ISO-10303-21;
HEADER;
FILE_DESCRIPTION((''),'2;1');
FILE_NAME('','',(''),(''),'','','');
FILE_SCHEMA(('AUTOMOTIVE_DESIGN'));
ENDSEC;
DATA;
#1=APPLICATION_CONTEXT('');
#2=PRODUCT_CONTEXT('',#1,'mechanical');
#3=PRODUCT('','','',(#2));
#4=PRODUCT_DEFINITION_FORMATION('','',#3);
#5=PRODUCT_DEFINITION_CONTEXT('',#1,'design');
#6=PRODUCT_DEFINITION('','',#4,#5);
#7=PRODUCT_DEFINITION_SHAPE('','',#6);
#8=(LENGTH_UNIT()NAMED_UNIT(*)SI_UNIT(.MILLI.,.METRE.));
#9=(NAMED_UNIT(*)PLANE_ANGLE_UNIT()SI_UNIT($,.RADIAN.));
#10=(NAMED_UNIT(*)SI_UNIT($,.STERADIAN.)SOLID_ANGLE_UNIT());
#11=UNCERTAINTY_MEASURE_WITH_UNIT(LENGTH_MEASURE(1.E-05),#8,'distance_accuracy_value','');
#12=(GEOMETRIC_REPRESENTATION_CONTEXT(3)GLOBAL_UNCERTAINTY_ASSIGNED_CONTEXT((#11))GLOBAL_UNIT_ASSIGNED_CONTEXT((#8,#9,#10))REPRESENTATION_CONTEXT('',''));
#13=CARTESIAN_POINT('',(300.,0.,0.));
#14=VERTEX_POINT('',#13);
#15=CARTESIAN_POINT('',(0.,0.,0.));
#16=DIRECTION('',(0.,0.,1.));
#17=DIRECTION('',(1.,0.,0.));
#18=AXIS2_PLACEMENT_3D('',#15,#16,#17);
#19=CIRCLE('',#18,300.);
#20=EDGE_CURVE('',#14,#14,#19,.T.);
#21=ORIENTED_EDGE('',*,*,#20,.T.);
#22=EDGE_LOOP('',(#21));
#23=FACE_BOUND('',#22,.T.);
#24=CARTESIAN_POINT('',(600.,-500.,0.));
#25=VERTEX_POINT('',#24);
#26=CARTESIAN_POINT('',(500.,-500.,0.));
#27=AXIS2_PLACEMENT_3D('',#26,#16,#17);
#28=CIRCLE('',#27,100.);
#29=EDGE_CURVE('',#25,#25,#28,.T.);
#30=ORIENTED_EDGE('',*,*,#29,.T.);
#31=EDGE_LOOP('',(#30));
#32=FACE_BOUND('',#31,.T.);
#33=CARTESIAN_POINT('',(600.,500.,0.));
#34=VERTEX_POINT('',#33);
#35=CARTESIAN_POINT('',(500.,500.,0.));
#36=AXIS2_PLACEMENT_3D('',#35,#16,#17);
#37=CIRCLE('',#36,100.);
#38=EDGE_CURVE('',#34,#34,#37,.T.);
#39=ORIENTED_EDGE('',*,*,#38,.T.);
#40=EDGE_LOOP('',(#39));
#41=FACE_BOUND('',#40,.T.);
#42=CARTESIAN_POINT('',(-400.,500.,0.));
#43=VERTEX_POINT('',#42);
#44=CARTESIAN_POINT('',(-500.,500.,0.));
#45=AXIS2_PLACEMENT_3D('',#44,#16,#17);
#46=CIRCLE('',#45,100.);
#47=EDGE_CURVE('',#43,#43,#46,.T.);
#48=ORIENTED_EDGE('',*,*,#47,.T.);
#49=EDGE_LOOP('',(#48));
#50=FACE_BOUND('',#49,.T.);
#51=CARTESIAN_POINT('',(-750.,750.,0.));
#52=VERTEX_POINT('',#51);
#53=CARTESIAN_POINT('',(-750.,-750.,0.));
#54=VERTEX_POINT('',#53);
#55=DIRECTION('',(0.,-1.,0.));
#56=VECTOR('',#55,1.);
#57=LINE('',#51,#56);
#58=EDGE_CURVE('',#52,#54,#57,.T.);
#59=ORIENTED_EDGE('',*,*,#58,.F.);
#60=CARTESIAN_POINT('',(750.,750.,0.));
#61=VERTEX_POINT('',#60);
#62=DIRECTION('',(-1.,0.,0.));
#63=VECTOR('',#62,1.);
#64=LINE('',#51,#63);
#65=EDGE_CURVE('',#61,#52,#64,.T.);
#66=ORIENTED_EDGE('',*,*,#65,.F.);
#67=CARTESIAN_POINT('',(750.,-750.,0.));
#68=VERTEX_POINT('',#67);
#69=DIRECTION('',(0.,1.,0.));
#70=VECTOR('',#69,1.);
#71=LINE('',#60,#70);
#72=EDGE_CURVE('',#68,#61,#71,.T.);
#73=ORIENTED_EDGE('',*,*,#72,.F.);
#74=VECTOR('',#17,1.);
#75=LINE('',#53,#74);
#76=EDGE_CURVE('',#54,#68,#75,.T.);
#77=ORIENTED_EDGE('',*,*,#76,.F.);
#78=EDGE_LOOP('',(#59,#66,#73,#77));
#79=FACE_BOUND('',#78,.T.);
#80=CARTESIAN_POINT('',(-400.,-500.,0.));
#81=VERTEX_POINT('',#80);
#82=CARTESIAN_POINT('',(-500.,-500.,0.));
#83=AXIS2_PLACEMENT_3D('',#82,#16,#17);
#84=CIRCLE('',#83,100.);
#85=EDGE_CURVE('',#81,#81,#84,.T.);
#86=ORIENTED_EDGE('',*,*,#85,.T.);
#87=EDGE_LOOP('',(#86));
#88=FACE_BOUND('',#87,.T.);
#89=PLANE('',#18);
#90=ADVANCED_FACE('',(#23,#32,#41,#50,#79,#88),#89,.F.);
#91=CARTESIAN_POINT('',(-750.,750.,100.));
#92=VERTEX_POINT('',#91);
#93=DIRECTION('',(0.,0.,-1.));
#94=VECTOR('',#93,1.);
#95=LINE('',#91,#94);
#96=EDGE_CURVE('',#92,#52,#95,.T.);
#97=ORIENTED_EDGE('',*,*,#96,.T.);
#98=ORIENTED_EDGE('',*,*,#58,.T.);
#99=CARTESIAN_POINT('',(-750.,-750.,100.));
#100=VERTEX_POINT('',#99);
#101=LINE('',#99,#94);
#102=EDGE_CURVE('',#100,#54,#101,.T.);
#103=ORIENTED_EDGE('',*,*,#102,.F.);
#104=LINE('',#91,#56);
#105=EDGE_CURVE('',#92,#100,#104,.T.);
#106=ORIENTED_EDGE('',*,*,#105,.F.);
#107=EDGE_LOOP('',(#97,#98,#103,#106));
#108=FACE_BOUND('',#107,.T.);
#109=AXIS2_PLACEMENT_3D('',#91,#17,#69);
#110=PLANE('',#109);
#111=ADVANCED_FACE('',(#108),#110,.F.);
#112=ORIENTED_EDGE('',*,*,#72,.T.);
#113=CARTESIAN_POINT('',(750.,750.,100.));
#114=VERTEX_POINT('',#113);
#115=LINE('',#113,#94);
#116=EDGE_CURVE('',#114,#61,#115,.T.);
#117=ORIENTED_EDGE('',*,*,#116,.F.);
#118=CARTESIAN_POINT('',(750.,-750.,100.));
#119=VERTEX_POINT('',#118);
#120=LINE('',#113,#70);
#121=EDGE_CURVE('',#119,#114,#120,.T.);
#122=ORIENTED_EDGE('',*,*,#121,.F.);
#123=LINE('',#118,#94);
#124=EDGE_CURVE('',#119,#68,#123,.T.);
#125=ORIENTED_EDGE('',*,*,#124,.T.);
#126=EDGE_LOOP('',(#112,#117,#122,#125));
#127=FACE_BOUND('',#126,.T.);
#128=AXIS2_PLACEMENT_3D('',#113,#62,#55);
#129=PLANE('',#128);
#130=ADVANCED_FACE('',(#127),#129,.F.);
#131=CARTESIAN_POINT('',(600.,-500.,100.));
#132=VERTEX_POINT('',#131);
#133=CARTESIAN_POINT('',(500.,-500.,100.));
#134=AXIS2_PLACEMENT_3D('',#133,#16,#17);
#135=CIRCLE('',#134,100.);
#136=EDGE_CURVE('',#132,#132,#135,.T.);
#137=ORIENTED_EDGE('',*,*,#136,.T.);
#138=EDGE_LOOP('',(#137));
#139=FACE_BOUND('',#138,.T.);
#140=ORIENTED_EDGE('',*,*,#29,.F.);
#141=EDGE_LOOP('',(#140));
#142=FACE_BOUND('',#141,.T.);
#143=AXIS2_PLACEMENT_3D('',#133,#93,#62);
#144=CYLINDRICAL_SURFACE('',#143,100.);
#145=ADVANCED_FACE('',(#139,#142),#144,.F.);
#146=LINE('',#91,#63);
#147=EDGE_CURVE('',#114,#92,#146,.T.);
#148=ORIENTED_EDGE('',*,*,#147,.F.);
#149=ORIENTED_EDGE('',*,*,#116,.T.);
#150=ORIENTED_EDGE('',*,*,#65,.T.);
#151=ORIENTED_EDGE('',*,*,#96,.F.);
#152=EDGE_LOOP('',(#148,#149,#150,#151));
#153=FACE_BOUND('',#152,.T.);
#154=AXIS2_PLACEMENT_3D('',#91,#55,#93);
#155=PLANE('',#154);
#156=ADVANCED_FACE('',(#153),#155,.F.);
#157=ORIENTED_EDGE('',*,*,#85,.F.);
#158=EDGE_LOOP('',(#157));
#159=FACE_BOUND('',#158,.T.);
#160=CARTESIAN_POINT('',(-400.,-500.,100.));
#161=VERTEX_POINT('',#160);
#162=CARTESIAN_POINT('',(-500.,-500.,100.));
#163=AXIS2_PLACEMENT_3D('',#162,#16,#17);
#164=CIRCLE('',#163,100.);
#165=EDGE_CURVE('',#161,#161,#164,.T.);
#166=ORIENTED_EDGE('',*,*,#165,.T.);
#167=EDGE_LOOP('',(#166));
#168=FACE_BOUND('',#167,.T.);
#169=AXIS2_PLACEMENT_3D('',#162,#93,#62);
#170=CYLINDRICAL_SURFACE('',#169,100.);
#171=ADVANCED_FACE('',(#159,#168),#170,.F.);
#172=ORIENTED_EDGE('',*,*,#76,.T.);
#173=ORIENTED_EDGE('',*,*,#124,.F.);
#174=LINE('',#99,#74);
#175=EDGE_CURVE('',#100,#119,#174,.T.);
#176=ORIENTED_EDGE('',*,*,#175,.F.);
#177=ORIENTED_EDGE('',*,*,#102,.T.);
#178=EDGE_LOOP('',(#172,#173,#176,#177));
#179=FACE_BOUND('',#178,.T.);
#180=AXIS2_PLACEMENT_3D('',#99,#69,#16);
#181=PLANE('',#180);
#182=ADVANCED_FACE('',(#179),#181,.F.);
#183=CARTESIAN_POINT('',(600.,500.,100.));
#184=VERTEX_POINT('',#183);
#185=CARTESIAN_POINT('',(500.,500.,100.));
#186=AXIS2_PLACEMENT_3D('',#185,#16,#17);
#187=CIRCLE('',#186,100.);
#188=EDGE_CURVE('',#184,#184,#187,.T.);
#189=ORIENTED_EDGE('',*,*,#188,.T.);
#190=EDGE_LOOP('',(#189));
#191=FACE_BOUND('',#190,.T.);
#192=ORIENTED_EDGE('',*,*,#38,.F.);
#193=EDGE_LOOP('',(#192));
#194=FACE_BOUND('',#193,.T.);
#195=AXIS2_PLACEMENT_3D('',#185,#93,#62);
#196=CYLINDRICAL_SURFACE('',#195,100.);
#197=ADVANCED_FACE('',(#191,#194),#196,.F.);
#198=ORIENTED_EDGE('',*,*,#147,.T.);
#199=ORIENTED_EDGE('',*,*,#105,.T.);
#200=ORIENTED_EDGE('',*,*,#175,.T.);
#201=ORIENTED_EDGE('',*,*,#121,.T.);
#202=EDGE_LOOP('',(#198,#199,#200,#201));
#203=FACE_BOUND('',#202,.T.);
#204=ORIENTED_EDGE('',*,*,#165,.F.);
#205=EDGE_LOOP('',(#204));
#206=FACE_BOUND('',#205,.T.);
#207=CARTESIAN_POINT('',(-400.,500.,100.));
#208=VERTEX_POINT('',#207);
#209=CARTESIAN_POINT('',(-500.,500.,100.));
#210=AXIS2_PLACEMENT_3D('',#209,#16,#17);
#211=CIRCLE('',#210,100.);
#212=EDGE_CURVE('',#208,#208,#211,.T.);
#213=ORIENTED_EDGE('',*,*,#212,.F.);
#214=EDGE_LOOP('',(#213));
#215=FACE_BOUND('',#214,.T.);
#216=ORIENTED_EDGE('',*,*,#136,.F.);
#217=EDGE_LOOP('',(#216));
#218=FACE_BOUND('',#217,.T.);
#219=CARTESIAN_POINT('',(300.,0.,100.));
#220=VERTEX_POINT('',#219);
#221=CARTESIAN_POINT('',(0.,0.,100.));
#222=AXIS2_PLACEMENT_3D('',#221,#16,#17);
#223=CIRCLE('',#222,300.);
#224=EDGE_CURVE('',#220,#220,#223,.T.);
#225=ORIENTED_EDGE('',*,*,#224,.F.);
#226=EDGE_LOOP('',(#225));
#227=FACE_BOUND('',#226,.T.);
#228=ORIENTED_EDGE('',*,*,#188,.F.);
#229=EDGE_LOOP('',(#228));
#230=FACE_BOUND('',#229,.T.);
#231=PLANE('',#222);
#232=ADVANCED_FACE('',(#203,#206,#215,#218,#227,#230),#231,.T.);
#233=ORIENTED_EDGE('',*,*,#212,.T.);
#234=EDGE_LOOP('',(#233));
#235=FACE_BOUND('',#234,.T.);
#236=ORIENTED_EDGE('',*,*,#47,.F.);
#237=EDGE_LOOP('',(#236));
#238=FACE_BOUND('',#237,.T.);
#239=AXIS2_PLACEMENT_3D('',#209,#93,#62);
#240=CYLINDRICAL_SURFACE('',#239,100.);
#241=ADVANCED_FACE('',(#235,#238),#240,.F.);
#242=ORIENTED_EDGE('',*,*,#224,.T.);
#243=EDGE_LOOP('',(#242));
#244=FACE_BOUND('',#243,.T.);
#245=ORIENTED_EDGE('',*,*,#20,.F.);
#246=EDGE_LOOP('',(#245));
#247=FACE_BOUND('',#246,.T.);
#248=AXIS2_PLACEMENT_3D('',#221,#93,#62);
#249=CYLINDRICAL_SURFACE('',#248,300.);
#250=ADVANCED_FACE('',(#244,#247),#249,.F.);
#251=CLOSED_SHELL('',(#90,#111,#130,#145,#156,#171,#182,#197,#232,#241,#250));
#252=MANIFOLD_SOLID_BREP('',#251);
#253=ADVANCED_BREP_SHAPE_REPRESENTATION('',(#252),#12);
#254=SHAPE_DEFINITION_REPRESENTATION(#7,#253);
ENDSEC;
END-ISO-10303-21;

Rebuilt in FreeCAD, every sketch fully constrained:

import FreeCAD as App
import Part
import Sketcher
Q = App.Units.Quantity

doc = App.newDocument("Part")
body = doc.addObject("PartDesign::Body", "Body")

# Sketch on XY plane
sketch1 = doc.addObject("Sketcher::SketchObject", "Sketch")
body.addObject(sketch1)
sketch1.AttachmentSupport = (doc.XY_Plane, [""])
sketch1.MapMode = "FlatFace"
sketch1.addGeometry([
    Part.LineSegment(App.Vector(-750, 750, 0), App.Vector(-750, -750, 0)),  # 0
    Part.LineSegment(App.Vector(-750, -750, 0), App.Vector(750, -750, 0)),  # 1
    Part.LineSegment(App.Vector(750, -750, 0), App.Vector(750, 750, 0)),  # 2
    Part.LineSegment(App.Vector(750, 750, 0), App.Vector(-750, 750, 0)),  # 3
    Part.Circle(App.Vector(-500, -500, 0), App.Vector(0, 0, 1), 100),  # 4
    Part.Circle(App.Vector(500, -500, 0), App.Vector(0, 0, 1), 100),  # 5
    Part.Circle(App.Vector(-500, 500, 0), App.Vector(0, 0, 1), 100),  # 6
    Part.Circle(App.Vector(0, 0, 0), App.Vector(0, 0, 1), 300),  # 7
    Part.Circle(App.Vector(500, 500, 0), App.Vector(0, 0, 1), 100),  # 8
], False)
sketch1.addConstraint([
    Sketcher.Constraint("Coincident", 0, 2, 1, 1),
    Sketcher.Constraint("Coincident", 1, 2, 2, 1),
    Sketcher.Constraint("Coincident", 2, 2, 3, 1),
    Sketcher.Constraint("Coincident", 3, 2, 0, 1),
    Sketcher.Constraint("Vertical", 0),
    Sketcher.Constraint("Horizontal", 1),
    Sketcher.Constraint("Vertical", 2),
    Sketcher.Constraint("Horizontal", 3),
    Sketcher.Constraint("Coincident", 7, 3, -1, 1),
    Sketcher.Constraint("Equal", 4, 5),
    Sketcher.Constraint("Equal", 5, 6),
    Sketcher.Constraint("Equal", 6, 8),
    Sketcher.Constraint("Symmetric", 5, 3, 6, 3, -1, 1),
    Sketcher.Constraint("Symmetric", 4, 3, 8, 3, -1, 1),
    Sketcher.Constraint("Symmetric", 0, 2, 2, 2, -1, 1),
    Sketcher.Constraint("Symmetric", 4, 3, 5, 3, -2),
    Sketcher.Constraint("Equal", 3, 0),
    Sketcher.Constraint("Diameter", 4, Q("200 mm")),
    Sketcher.Constraint("Diameter", 7, Q("600 mm")),
    Sketcher.Constraint("DistanceX", 1, 1, 1, 2, Q("1500 mm")),
    Sketcher.Constraint("DistanceX", 4, 3, -1, 1, Q("500 mm")),
    Sketcher.Constraint("DistanceY", 4, 3, -1, 1, Q("500 mm")),
])
pad1 = doc.addObject("PartDesign::Pad", "Pad")
body.addObject(pad1)
pad1.Profile = sketch1
pad1.Length = 100

doc.recompute()
